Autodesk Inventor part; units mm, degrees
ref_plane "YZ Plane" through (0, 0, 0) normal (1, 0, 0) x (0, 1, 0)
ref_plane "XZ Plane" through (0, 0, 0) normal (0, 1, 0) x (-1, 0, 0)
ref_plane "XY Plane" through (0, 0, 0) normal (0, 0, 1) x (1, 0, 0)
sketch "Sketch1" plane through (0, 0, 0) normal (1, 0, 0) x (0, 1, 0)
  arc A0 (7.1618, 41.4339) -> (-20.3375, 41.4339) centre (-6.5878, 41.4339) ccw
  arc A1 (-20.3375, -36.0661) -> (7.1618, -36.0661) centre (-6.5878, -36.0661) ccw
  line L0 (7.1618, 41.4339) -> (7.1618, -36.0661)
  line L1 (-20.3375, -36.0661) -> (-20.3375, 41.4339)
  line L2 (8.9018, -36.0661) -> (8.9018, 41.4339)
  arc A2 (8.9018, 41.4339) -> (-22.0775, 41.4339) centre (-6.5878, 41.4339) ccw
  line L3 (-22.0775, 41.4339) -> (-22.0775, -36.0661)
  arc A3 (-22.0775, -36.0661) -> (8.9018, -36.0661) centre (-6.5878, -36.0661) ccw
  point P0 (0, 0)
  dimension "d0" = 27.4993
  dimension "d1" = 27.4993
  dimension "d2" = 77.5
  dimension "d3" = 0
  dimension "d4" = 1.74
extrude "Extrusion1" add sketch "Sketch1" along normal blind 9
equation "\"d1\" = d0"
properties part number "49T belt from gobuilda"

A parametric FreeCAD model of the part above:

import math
import FreeCAD as App
import Part
import Sketcher

V = App.Vector

doc = App.newDocument("Part")
params = doc.addObject("Spreadsheet::Sheet", "Params")
for row, (alias, value) in enumerate([
    ("sketch1_height", "77.5 mm"),
    ("pad1_length", "9 mm"),
], start=1):
    params.set(f"A{row}", alias)
    params.set(f"B{row}", "=" + value)
    params.setAlias(f"B{row}", alias)

body = doc.addObject("PartDesign::Body", "Body")

# Sketch on YZ plane
sketch1 = doc.addObject("Sketcher::SketchObject", "Sketch")
body.addObject(sketch1)
sketch1.AttachmentSupport = (doc.YZ_Plane, [""])
sketch1.MapMode = "FlatFace"
sketch1.addGeometry([
    Part.ArcOfCircle(Part.Circle(V(-7, -36, 0), V(0, 0, 1), 15), math.radians(180), math.radians(360)),  # 0
    Part.LineSegment(V(9, -36, 0), V(9, 41, 0)),  # 1
    Part.ArcOfCircle(Part.Circle(V(-7, 41, 0), V(0, 0, 1), 15), math.radians(0), math.radians(180)),  # 2
    Part.LineSegment(V(-22, 41, 0), V(-22, -36, 0)),  # 3
    Part.ArcOfCircle(Part.Circle(V(-7, 41, 0), V(0, 0, 1), 14), math.radians(0), math.radians(180)),  # 4
    Part.LineSegment(V(7, 41, 0), V(7, -36, 0)),  # 5
    Part.ArcOfCircle(Part.Circle(V(-7, -36, 0), V(0, 0, 1), 14), math.radians(180), math.radians(360)),  # 6
    Part.LineSegment(V(-20, -36, 0), V(-20, 41, 0)),  # 7
], False)
sketch1.addConstraint([
    Sketcher.Constraint("Tangent", 0, 2, 1, 1),
    Sketcher.Constraint("Tangent", 1, 2, 2, 1),
    Sketcher.Constraint("Tangent", 2, 2, 3, 1),
    Sketcher.Constraint("Tangent", 3, 2, 0, 1),
    Sketcher.Constraint("Tangent", 4, 1, 5, 1),
    Sketcher.Constraint("Tangent", 5, 2, 6, 2),
    Sketcher.Constraint("Tangent", 6, 1, 7, 1),
    Sketcher.Constraint("Tangent", 7, 2, 4, 2),
    Sketcher.Constraint("Vertical", 1),
    Sketcher.Constraint("Vertical", 3),
    Sketcher.Constraint("Vertical", 5),
    Sketcher.Constraint("Vertical", 7),
    Sketcher.Constraint("Coincident", 4, 3, 2, 3),
    Sketcher.Constraint("Horizontal", 6, 3, 0, 2),
    Sketcher.Constraint("DistanceY", 1, 1, 1, 2, 77.5),
    Sketcher.Constraint("Radius", 4, 13.7496),
    Sketcher.Constraint("DistanceX", 4, 1, 1, 2, 1.74),
    Sketcher.Constraint("DistanceY", 0, 3, -1, 1, 36.066),
    Sketcher.Constraint("DistanceX", -1, 1, 0, 2, 8.902),
])
sketch1.setExpression("Constraints[14]", "Params.sketch1_height")
pad1 = doc.addObject("PartDesign::Pad", "Pad")
body.addObject(pad1)
pad1.Profile = sketch1
pad1.setExpression("Length", "Params.pad1_length")

doc.recompute()
